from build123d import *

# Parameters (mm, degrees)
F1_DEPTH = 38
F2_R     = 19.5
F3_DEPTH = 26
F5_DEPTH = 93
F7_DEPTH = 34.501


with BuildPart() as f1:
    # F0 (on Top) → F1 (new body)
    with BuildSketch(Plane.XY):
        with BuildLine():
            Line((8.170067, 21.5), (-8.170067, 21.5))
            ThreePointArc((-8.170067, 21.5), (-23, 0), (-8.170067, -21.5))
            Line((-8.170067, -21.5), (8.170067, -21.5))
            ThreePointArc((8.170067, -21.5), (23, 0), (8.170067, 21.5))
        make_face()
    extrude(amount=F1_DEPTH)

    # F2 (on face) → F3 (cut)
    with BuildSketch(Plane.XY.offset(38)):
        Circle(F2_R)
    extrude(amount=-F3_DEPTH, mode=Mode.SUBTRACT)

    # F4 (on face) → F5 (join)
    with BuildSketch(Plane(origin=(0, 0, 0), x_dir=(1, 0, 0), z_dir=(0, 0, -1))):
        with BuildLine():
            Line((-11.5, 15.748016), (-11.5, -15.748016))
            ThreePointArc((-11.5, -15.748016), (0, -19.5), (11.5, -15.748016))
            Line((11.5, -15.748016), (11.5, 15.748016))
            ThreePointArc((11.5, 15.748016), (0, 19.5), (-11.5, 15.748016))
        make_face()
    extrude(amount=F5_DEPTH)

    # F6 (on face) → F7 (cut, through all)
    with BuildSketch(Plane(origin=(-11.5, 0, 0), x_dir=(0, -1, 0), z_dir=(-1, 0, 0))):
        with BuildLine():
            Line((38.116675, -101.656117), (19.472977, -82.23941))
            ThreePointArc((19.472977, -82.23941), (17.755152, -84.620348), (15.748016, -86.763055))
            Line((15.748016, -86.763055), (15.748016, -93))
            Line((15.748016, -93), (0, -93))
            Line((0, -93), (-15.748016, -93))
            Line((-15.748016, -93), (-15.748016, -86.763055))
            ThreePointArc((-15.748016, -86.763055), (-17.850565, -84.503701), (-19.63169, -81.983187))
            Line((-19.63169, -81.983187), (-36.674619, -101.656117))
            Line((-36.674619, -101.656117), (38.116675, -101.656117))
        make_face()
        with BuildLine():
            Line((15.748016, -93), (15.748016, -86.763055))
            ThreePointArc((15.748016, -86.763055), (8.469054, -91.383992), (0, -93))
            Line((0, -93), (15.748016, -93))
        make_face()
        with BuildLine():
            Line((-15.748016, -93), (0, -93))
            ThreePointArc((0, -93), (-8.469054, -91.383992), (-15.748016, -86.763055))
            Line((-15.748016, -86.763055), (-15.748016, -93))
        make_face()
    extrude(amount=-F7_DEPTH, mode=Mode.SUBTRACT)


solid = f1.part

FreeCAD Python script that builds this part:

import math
import FreeCAD as App
import Part
import Sketcher

V = App.Vector
Q = App.Units.Quantity

doc = App.newDocument("Part")
body = doc.addObject("PartDesign::Body", "Body")

# Sketch on XY plane
sketch1 = body.newObject("Sketcher::SketchObject", "Sketch")
sketch1.AttachmentSupport = (doc.getObject("XY_Plane"), [""])
sketch1.MapMode = "FlatFace"
sketch1.addGeometry([
    Part.LineSegment(V(8.170067, 21.5, 0), V(-8.170067, 21.5, 0)),
    Part.ArcOfCircle(Part.Circle(V(0, 0, 0), V(0, 0, 1), 23), math.radians(110.806947), math.radians(249.193053)),
    Part.LineSegment(V(-8.170067, -21.5, 0), V(8.170067, -21.5, 0)),
    Part.ArcOfCircle(Part.Circle(V(0, 0, 0), V(0, 0, 1), 23), math.radians(-69.193053), math.radians(69.193053)),
], False)
sketch1.addConstraint([
    Sketcher.Constraint("Coincident", 0, 2, 1, 1),
    Sketcher.Constraint("Coincident", 1, 2, 2, 1),
    Sketcher.Constraint("Coincident", 2, 2, 3, 1),
    Sketcher.Constraint("Coincident", 3, 2, 0, 1),
    Sketcher.Constraint("Horizontal", 0),
    Sketcher.Constraint("Horizontal", 2),
    Sketcher.Constraint("Coincident", 1, 3, -1, 1),
    Sketcher.Constraint("Coincident", 3, 3, -1, 1),
    Sketcher.Constraint("Equal", 1, 3),
    Sketcher.Constraint("Vertical", 0, 2, 1, 2),
    Sketcher.Constraint("Radius", 1, Q("23 mm")),
    Sketcher.Constraint("DistanceY", 1, 2, 0, 2, Q("43 mm")),
])
pad1 = body.newObject("PartDesign::Pad", "Pad")
pad1.Profile = sketch1
pad1.Length = 38

# Sketch on XY plane
sketch2 = body.newObject("Sketcher::SketchObject", "Sketch001")
sketch2.AttachmentSupport = (doc.getObject("XY_Plane"), [""])
sketch2.MapMode = "FlatFace"
sketch2.AttachmentOffset = App.Placement(V(0, 0, 38), App.Rotation())
sketch2.addGeometry(Part.Circle(V(0, 0, 0), V(0, 0, 1), 19.5), False)
sketch2.addConstraint([
    Sketcher.Constraint("Coincident", 0, 3, -1, 1),
    Sketcher.Constraint("Diameter", 0, Q("39 mm")),
])
pocket1 = body.newObject("PartDesign::Pocket", "Pocket")
pocket1.Profile = sketch2
pocket1.Length = 26

# Sketch on XY plane
sketch3 = body.newObject("Sketcher::SketchObject", "Sketch002")
sketch3.AttachmentSupport = (doc.getObject("XY_Plane"), [""])
sketch3.MapMode = "FlatFace"
sketch3.addGeometry([
    Part.LineSegment(V(-11.5, -15.748016, 0), V(-11.5, 15.748016, 0)),
    Part.ArcOfCircle(Part.Circle(V(0, -0.000001, 0), V(0, 0, 1), 19.500001), math.radians(53.861188), math.radians(126.138812)),
    Part.LineSegment(V(11.5, 15.748016, 0), V(11.5, -15.748016, 0)),
    Part.ArcOfCircle(Part.Circle(V(0, 0.000001, 0), V(0, 0, 1), 19.500001), math.radians(-126.138812), math.radians(-53.861188)),
], False)
sketch3.addConstraint([
    Sketcher.Constraint("Coincident", 0, 2, 1, 2),
    Sketcher.Constraint("Coincident", 1, 1, 2, 1),
    Sketcher.Constraint("Coincident", 2, 2, 3, 2),
    Sketcher.Constraint("Coincident", 3, 1, 0, 1),
    Sketcher.Constraint("Vertical", 0),
    Sketcher.Constraint("Vertical", 2),
    Sketcher.Constraint("Coincident", 1, 3, -1, 1),
    Sketcher.Constraint("Coincident", 3, 3, -1, 1),
    Sketcher.Constraint("Equal", 1, 3),
    Sketcher.Constraint("Horizontal", 0, 2, 1, 1),
    Sketcher.Constraint("Radius", 1, Q("19.500001 mm")),
    Sketcher.Constraint("DistanceX", 0, 2, 1, 1, Q("23 mm")),
])
pad2 = body.newObject("PartDesign::Pad", "Pad001")
pad2.Profile = sketch3
pad2.Length = 93
pad2.Reversed = True

# Sketch on YZ plane
sketch4 = body.newObject("Sketcher::SketchObject", "Sketch003")
sketch4.AttachmentSupport = (doc.getObject("YZ_Plane"), [""])
sketch4.MapMode = "FlatFace"
sketch4.AttachmentOffset = App.Placement(V(0, 0, -11.5), App.Rotation())
sketch4.addGeometry([
    Part.LineSegment(V(-38.116675, -101.656117, 0), V(-19.472977, -82.23941, 0)),  # 0
    Part.ArcOfCircle(Part.Circle(V(0.000017, -69.999989, 0), V(0, 0, 1), 23.00002), math.radians(-147.84928), math.radians(-133.211743)),  # 1
    Part.ArcOfCircle(Part.Circle(V(0.000002, -69.999994, 0), V(0, 0, 1), 23.000006), math.radians(-133.211723), math.radians(-90.000005)),  # 2
    Part.ArcOfCircle(Part.Circle(V(-0.000002, -69.999994, 0), V(0, 0, 1), 23.000006), math.radians(-89.999995), math.radians(-46.788277)),  # 3
    Part.ArcOfCircle(Part.Circle(V(-0.000016, -69.999987, 0), V(0, 0, 1), 23.000021), math.radians(-46.788263), math.radians(-31.399906)),  # 4
    Part.LineSegment(V(19.63169, -81.983187, 0), V(36.674619, -101.656117, 0)),  # 5
    Part.LineSegment(V(36.674619, -101.656117, 0), V(-38.116675, -101.656117, 0)),  # 6
], False)
sketch4.addConstraint([
    Sketcher.Constraint("Coincident", 0, 2, 1, 1),
    Sketcher.Constraint("Tangent", 1, 2, 2, 1),
    Sketcher.Constraint("Tangent", 2, 2, 3, 1),
    Sketcher.Constraint("Tangent", 3, 2, 4, 1),
    Sketcher.Constraint("Coincident", 4, 2, 5, 1),
    Sketcher.Constraint("Coincident", 5, 2, 6, 1),
    Sketcher.Constraint("Coincident", 6, 2, 0, 1),
    Sketcher.Constraint("Horizontal", 6),
    Sketcher.Constraint("Equal", 2, 3),
    Sketcher.Constraint("Equal", 1, 4),
    Sketcher.Constraint("Symmetric", 1, 2, 3, 2, -2),
    Sketcher.Constraint("PointOnObject", 2, 2, -2),
    Sketcher.Constraint("DistanceY", 2, 2, -1, 1, Q("93 mm")),
    Sketcher.Constraint("Radius", 1, Q("23.00002 mm")),
    Sketcher.Constraint("Radius", 2, Q("23.000006 mm")),
    Sketcher.Constraint("DistanceX", 1, 2, 4, 3, Q("15.748 mm")),
    Sketcher.Constraint("DistanceX", 6, 2, 0, 2, Q("18.643698 mm")),
    Sketcher.Constraint("Distance", 0, Q("26.918321 mm")),
    Sketcher.Constraint("DistanceX", 6, 2, 6, 1, Q("74.791294 mm")),
    Sketcher.Constraint("DistanceY", 0, 2, -1, 1, Q("82.23941 mm")),
    Sketcher.Constraint("DistanceX", -1, 1, 4, 2, Q("19.63169 mm")),
])
pocket2 = body.newObject("PartDesign::Pocket", "Pocket001")
pocket2.Profile = sketch4
pocket2.Type = "ThroughAll"
pocket2.Reversed = True

doc.recompute()
